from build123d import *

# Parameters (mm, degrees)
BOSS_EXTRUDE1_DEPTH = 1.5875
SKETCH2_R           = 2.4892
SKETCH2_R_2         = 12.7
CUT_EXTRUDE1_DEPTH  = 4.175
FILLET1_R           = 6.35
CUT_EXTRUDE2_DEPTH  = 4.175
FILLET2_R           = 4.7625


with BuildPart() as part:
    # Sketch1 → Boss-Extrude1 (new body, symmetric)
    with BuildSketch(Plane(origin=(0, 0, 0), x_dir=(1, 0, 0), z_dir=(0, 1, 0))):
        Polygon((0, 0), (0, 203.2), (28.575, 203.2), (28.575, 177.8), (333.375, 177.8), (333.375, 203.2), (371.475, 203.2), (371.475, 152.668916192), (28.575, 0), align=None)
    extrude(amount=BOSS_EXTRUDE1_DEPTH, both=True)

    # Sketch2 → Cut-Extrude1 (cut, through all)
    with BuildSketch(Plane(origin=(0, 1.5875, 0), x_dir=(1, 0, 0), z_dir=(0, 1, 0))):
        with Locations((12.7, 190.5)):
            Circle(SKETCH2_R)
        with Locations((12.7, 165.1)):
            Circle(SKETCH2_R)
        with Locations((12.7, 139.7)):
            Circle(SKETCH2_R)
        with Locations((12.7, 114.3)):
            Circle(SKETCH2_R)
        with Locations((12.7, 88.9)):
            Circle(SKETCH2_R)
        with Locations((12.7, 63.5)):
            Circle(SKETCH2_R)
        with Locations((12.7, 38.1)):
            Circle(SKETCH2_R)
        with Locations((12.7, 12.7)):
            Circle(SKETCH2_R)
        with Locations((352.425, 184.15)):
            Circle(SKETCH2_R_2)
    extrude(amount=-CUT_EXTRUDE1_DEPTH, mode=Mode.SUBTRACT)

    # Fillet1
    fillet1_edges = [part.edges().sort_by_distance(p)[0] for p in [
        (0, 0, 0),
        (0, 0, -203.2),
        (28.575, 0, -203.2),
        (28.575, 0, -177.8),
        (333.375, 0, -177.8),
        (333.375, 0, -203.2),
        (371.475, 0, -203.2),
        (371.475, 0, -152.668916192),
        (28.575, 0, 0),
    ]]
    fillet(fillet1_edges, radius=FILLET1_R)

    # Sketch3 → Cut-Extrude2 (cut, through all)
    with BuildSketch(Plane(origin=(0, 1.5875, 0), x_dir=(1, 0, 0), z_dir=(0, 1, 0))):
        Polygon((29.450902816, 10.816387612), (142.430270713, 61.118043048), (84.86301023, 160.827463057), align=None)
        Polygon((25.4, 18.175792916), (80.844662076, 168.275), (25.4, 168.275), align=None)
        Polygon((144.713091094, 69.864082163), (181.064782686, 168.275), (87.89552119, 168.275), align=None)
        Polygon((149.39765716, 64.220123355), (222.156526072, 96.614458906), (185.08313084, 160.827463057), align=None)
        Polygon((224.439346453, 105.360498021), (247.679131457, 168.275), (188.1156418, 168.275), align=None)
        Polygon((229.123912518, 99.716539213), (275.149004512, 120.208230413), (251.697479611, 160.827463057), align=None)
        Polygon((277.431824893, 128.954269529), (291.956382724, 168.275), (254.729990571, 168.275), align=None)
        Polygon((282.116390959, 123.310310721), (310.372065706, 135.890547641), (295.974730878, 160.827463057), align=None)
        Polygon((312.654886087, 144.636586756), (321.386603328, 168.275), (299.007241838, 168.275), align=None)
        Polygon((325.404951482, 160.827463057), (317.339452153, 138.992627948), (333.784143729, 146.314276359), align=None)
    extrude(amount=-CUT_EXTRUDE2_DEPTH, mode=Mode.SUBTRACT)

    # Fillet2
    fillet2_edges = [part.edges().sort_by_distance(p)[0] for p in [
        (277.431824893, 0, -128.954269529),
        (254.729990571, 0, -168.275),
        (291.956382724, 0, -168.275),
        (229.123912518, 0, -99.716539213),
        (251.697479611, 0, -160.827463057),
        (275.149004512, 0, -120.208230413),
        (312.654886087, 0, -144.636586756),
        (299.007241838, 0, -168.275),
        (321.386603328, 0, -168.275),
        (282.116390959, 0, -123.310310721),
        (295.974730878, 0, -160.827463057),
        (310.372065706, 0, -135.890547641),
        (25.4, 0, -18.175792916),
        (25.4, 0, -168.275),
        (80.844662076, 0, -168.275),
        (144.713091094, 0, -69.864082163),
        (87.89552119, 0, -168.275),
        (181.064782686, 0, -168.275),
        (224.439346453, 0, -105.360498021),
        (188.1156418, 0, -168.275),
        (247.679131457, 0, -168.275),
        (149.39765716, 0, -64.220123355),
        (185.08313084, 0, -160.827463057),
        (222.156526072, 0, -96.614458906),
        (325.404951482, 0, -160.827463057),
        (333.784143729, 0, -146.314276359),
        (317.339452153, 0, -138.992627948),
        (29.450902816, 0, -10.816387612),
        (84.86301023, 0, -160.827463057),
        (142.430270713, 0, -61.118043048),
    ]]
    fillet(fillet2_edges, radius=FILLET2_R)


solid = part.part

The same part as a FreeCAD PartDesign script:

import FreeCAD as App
import Part
import Sketcher

V = App.Vector
Q = App.Units.Quantity


def edges_at(feature, points):
    """Names of the edges that pass closest to the given points."""
    edges = feature.Shape.Edges
    near = lambda p: min(range(len(edges)), key=lambda i: edges[i].distToShape(Part.Vertex(*p))[0])
    return sorted({f"Edge{near(p) + 1}" for p in points})

doc = App.newDocument("Part")
body = doc.addObject("PartDesign::Body", "Body")

sketch1 = doc.addObject("Sketcher::SketchObject", "Sketch")
body.addObject(sketch1)
sketch1.AttachmentSupport = (doc.XZ_Plane, [""])
sketch1.MapMode = "FlatFace"
sketch1.addGeometry([
    Part.LineSegment(V(0, -203.2, 0), V(0, 0, 0)),
    Part.LineSegment(V(0, 0, 0), V(28.575, 0, 0)),
    Part.LineSegment(V(28.575, 0, 0), V(371.475, -152.668916, 0)),
    Part.LineSegment(V(371.475, -152.668916, 0), V(371.475, -203.2, 0)),
    Part.LineSegment(V(371.475, -203.2, 0), V(333.375, -203.2, 0)),
    Part.LineSegment(V(333.375, -203.2, 0), V(333.375, -177.8, 0)),
    Part.LineSegment(V(333.375, -177.8, 0), V(28.575, -177.8, 0)),
    Part.LineSegment(V(28.575, -177.8, 0), V(28.575, -203.2, 0)),
    Part.LineSegment(V(28.575, -203.2, 0), V(0, -203.2, 0)),
], False)
sketch1.addConstraint([
    Sketcher.Constraint("Coincident", 0, 2, 1, 1),
    Sketcher.Constraint("Coincident", 1, 2, 2, 1),
    Sketcher.Constraint("Coincident", 2, 2, 3, 1),
    Sketcher.Constraint("Coincident", 3, 2, 4, 1),
    Sketcher.Constraint("Coincident", 4, 2, 5, 1),
    Sketcher.Constraint("Coincident", 5, 2, 6, 1),
    Sketcher.Constraint("Coincident", 6, 2, 7, 1),
    Sketcher.Constraint("Coincident", 7, 2, 8, 1),
    Sketcher.Constraint("Coincident", 8, 2, 0, 1),
    Sketcher.Constraint("Vertical", 0),
    Sketcher.Constraint("Horizontal", 1),
    Sketcher.Constraint("Vertical", 3),
    Sketcher.Constraint("Horizontal", 4),
    Sketcher.Constraint("Vertical", 5),
    Sketcher.Constraint("Horizontal", 6),
    Sketcher.Constraint("Vertical", 7),
    Sketcher.Constraint("Horizontal", 8),
    Sketcher.Constraint("Coincident", 0, 2, -1, 1),
    Sketcher.Constraint("Horizontal", 4, 2, 7, 2),
    Sketcher.Constraint("Vertical", 1, 2, 6, 2),
    Sketcher.Constraint("DistanceX", 6, 2, 6, 1, Q("12 in")),
    Sketcher.Constraint("DistanceY", 0, 1, 0, 2, Q("8 in")),
    Sketcher.Constraint("DistanceY", 5, 1, 5, 2, Q("1 in")),
    Sketcher.Constraint("DistanceX", 4, 2, 4, 1, Q("1.5 in")),
    Sketcher.Constraint("Angle", 2, Q("-24 deg")),
    Sketcher.Constraint("DistanceX", 1, 1, 1, 2, Q("1.125 in")),
])
pad1 = doc.addObject("PartDesign::Pad", "Pad")
body.addObject(pad1)
pad1.Profile = sketch1
pad1.Length = Q("0.125 in")
pad1.Midplane = True

sketch2 = doc.addObject("Sketcher::SketchObject", "Sketch001")
body.addObject(sketch2)
sketch2.AttachmentSupport = (doc.XZ_Plane, [""])
sketch2.MapMode = "FlatFace"
sketch2.AttachmentOffset = App.Placement(V(0, 0, -0.0625 * 25.4), App.Rotation())
sketch2.addGeometry([
    Part.Circle(V(12.7, -190.5, 0), V(0, 0, 1), 2.4892),
    Part.Circle(V(12.7, -165.1, 0), V(0, 0, 1), 2.4892),
    Part.Circle(V(12.7, -139.7, 0), V(0, 0, 1), 2.4892),
    Part.Circle(V(12.7, -114.3, 0), V(0, 0, 1), 2.4892),
    Part.Circle(V(12.7, -88.9, 0), V(0, 0, 1), 2.4892),
    Part.Circle(V(12.7, -63.5, 0), V(0, 0, 1), 2.4892),
    Part.Circle(V(12.7, -38.1, 0), V(0, 0, 1), 2.4892),
    Part.Circle(V(12.7, -12.7, 0), V(0, 0, 1), 2.4892),
    Part.Circle(V(352.425, -184.15, 0), V(0, 0, 1), 12.7),
], False)
sketch2.addConstraint([
    Sketcher.Constraint("Equal", 0, 1),
    Sketcher.Constraint("Equal", 1, 2),
    Sketcher.Constraint("Equal", 2, 3),
    Sketcher.Constraint("Equal", 3, 4),
    Sketcher.Constraint("Equal", 4, 5),
    Sketcher.Constraint("Equal", 5, 6),
    Sketcher.Constraint("Equal", 6, 7),
    Sketcher.Constraint("Vertical", 0, 3, 1, 3),
    Sketcher.Constraint("Vertical", 1, 3, 2, 3),
    Sketcher.Constraint("Vertical", 2, 3, 3, 3),
    Sketcher.Constraint("Vertical", 3, 3, 4, 3),
    Sketcher.Constraint("Vertical", 4, 3, 5, 3),
    Sketcher.Constraint("Vertical", 5, 3, 6, 3),
    Sketcher.Constraint("Vertical", 6, 3, 7, 3),
    Sketcher.Constraint("Diameter", 8, Q("1 in")),
    Sketcher.Constraint("Diameter", 0, Q("0.196 in")),
    Sketcher.Constraint("DistanceY", 0, 3, 1, 3, Q("1 in")),
    Sketcher.Constraint("DistanceY", 1, 3, 2, 3, Q("1 in")),
    Sketcher.Constraint("DistanceY", 2, 3, 3, 3, Q("1 in")),
    Sketcher.Constraint("DistanceY", 3, 3, 4, 3, Q("1 in")),
    Sketcher.Constraint("DistanceY", 4, 3, 5, 3, Q("1 in")),
    Sketcher.Constraint("DistanceY", 5, 3, 6, 3, Q("1 in")),
    Sketcher.Constraint("DistanceY", 6, 3, 7, 3, Q("1 in")),
    Sketcher.Constraint("DistanceX", -1, 1, 0, 3, Q("0.5 in")),
    Sketcher.Constraint("DistanceY", 0, 3, -1, 1, Q("7.5 in")),
    Sketcher.Constraint("DistanceY", 8, 3, -1, 1, Q("7.25 in")),
    Sketcher.Constraint("DistanceX", -1, 1, 8, 3, Q("13.875 in")),
])
pocket1 = doc.addObject("PartDesign::Pocket", "Pocket")
body.addObject(pocket1)
pocket1.Profile = sketch2
pocket1.Type = "ThroughAll"
pocket1.Reversed = True
doc.recompute()

fillet = doc.addObject("PartDesign::Fillet", "Fillet")
body.addObject(fillet)
fillet.Base = (pocket1, edges_at(pocket1, [
    (0, 0, 0),
    (0, 0, -203.2),
    (28.575, 0, -203.2),
    (28.575, 0, -177.8),
    (333.375, 0, -177.8),
    (333.375, 0, -203.2),
    (371.475, 0, -203.2),
    (371.475, 0, -152.669),
    (28.575, 0, 0),
]))
fillet.Radius = Q("0.25 in")

sketch3 = doc.addObject("Sketcher::SketchObject", "Sketch002")
body.addObject(sketch3)
sketch3.AttachmentSupport = (doc.XZ_Plane, [""])
sketch3.MapMode = "FlatFace"
sketch3.AttachmentOffset = App.Placement(V(0, 0, -0.0625 * 25.4), App.Rotation())
sketch3.addGeometry([
    Part.LineSegment(V(29.450903, -10.816388, 0), V(142.430271, -61.118043, 0)),
    Part.LineSegment(V(142.430271, -61.118043, 0), V(84.86301, -160.827463, 0)),
    Part.LineSegment(V(84.86301, -160.827463, 0), V(29.450903, -10.816388, 0)),
    Part.LineSegment(V(25.4, -18.175793, 0), V(80.844662, -168.275, 0)),
    Part.LineSegment(V(80.844662, -168.275, 0), V(25.4, -168.275, 0)),
    Part.LineSegment(V(25.4, -168.275, 0), V(25.4, -18.175793, 0)),
    Part.LineSegment(V(144.713091, -69.864082, 0), V(181.064783, -168.275, 0)),
    Part.LineSegment(V(181.064783, -168.275, 0), V(87.895521, -168.275, 0)),
    Part.LineSegment(V(87.895521, -168.275, 0), V(144.713091, -69.864082, 0)),
    Part.LineSegment(V(149.397657, -64.220123, 0), V(222.156526, -96.614459, 0)),
    Part.LineSegment(V(222.156526, -96.614459, 0), V(185.083131, -160.827463, 0)),
    Part.LineSegment(V(185.083131, -160.827463, 0), V(149.397657, -64.220123, 0)),
    Part.LineSegment(V(224.439346, -105.360498, 0), V(247.679131, -168.275, 0)),
    Part.LineSegment(V(247.679131, -168.275, 0), V(188.115642, -168.275, 0)),
    Part.LineSegment(V(188.115642, -168.275, 0), V(224.439346, -105.360498, 0)),
    Part.LineSegment(V(229.123913, -99.716539, 0), V(275.149005, -120.20823, 0)),
    Part.LineSegment(V(275.149005, -120.20823, 0), V(251.69748, -160.827463, 0)),
    Part.LineSegment(V(251.69748, -160.827463, 0), V(229.123913, -99.716539, 0)),
    Part.LineSegment(V(277.431825, -128.95427, 0), V(291.956383, -168.275, 0)),
    Part.LineSegment(V(291.956383, -168.275, 0), V(254.729991, -168.275, 0)),
    Part.LineSegment(V(254.729991, -168.275, 0), V(277.431825, -128.95427, 0)),
    Part.LineSegment(V(282.116391, -123.310311, 0), V(310.372066, -135.890548, 0)),
    Part.LineSegment(V(310.372066, -135.890548, 0), V(295.974731, -160.827463, 0)),
    Part.LineSegment(V(295.974731, -160.827463, 0), V(282.116391, -123.310311, 0)),
    Part.LineSegment(V(312.654886, -144.636587, 0), V(321.386603, -168.275, 0)),
    Part.LineSegment(V(321.386603, -168.275, 0), V(299.007242, -168.275, 0)),
    Part.LineSegment(V(299.007242, -168.275, 0), V(312.654886, -144.636587, 0)),
    Part.LineSegment(V(325.404951, -160.827463, 0), V(317.339452, -138.992628, 0)),
    Part.LineSegment(V(317.339452, -138.992628, 0), V(333.784144, -146.314276, 0)),
    Part.LineSegment(V(333.784144, -146.314276, 0), V(325.404951, -160.827463, 0)),
], False)
sketch3.addConstraint([
    Sketcher.Constraint("Coincident", 0, 2, 1, 1),
    Sketcher.Constraint("Coincident", 1, 2, 2, 1),
    Sketcher.Constraint("Coincident", 2, 2, 0, 1),
    Sketcher.Constraint("Coincident", 3, 2, 4, 1),
    Sketcher.Constraint("Coincident", 4, 2, 5, 1),
    Sketcher.Constraint("Coincident", 5, 2, 3, 1),
    Sketcher.Constraint("Coincident", 6, 2, 7, 1),
    Sketcher.Constraint("Coincident", 7, 2, 8, 1),
    Sketcher.Constraint("Coincident", 8, 2, 6, 1),
    Sketcher.Constraint("Coincident", 9, 2, 10, 1),
    Sketcher.Constraint("Coincident", 10, 2, 11, 1),
    Sketcher.Constraint("Coincident", 11, 2, 9, 1),
    Sketcher.Constraint("Coincident", 12, 2, 13, 1),
    Sketcher.Constraint("Coincident", 13, 2, 14, 1),
    Sketcher.Constraint("Coincident", 14, 2, 12, 1),
    Sketcher.Constraint("Coincident", 15, 2, 16, 1),
    Sketcher.Constraint("Coincident", 16, 2, 17, 1),
    Sketcher.Constraint("Coincident", 17, 2, 15, 1),
    Sketcher.Constraint("Coincident", 18, 2, 19, 1),
    Sketcher.Constraint("Coincident", 19, 2, 20, 1),
    Sketcher.Constraint("Coincident", 20, 2, 18, 1),
    Sketcher.Constraint("Coincident", 21, 2, 22, 1),
    Sketcher.Constraint("Coincident", 22, 2, 23, 1),
    Sketcher.Constraint("Coincident", 23, 2, 21, 1),
    Sketcher.Constraint("Coincident", 24, 2, 25, 1),
    Sketcher.Constraint("Coincident", 25, 2, 26, 1),
    Sketcher.Constraint("Coincident", 26, 2, 24, 1),
    Sketcher.Constraint("Coincident", 27, 2, 28, 1),
    Sketcher.Constraint("Coincident", 28, 2, 29, 1),
    Sketcher.Constraint("Coincident", 29, 2, 27, 1),
    Sketcher.Constraint("Horizontal", 4),
    Sketcher.Constraint("Vertical", 5),
    Sketcher.Constraint("Horizontal", 7),
    Sketcher.Constraint("Horizontal", 13),
    Sketcher.Constraint("Horizontal", 19),
    Sketcher.Constraint("Horizontal", 25),
    Sketcher.Constraint("Parallel", 2, 3),
    Sketcher.Constraint("Parallel", 3, 6),
    Sketcher.Constraint("Parallel", 1, 8),
    Sketcher.Constraint("Parallel", 0, 9),
    Sketcher.Constraint("Parallel", 8, 10),
    Sketcher.Constraint("Parallel", 6, 11),
    Sketcher.Constraint("Parallel", 11, 12),
    Sketcher.Constraint("Parallel", 10, 14),
    Sketcher.Constraint("Parallel", 9, 15),
    Sketcher.Constraint("Parallel", 14, 16),
    Sketcher.Constraint("Parallel", 12, 17),
    Sketcher.Constraint("Parallel", 17, 18),
    Sketcher.Constraint("Parallel", 16, 20),
    Sketcher.Constraint("Parallel", 15, 21),
    Sketcher.Constraint("Parallel", 20, 22),
    Sketcher.Constraint("Parallel", 18, 23),
    Sketcher.Constraint("Parallel", 23, 24),
    Sketcher.Constraint("Parallel", 22, 26),
    Sketcher.Constraint("Parallel", 24, 27),
    Sketcher.Constraint("Parallel", 21, 28),
    Sketcher.Constraint("Parallel", 26, 29),
    Sketcher.Constraint("Horizontal", 4, 2, 6, 2),
    Sketcher.Constraint("Horizontal", 1, 2, 10, 2),
    Sketcher.Constraint("Horizontal", 7, 2, 12, 2),
    Sketcher.Constraint("Horizontal", 10, 2, 16, 2),
    Sketcher.Constraint("Horizontal", 13, 2, 18, 2),
    Sketcher.Constraint("Horizontal", 16, 2, 22, 2),
    Sketcher.Constraint("Horizontal", 19, 2, 24, 2),
    Sketcher.Constraint("Horizontal", 22, 2, 29, 2),
    Sketcher.Constraint("DistanceX", -1, 1, 4, 2, Q("1 in")),
    Sketcher.Constraint("Angle", 0, Q("-24 deg")),
    Sketcher.Constraint("Angle", 1, Q("-120 deg")),
    Sketcher.Constraint("DistanceY", 3, 2, -1, 1, Q("6.625 in")),
    Sketcher.Constraint("DistanceX", 7, 2, 7, 1, Q("93.169261 mm")),
    Sketcher.Constraint("DistanceX", 13, 2, 13, 1, Q("59.56349 mm")),
    Sketcher.Constraint("DistanceX", 25, 2, 25, 1, Q("22.379361 mm")),
    Sketcher.Constraint("DistanceY", 14, 2, -1, 1, Q("105.360498 mm")),
    Sketcher.Constraint("DistanceX", 10, 2, 12, 2, Q("62.596001 mm")),
    Sketcher.Constraint("DistanceX", 27, 2, 29, 2, Q("8.065499 mm")),
    Sketcher.Constraint("Distance", 1, Q("115.134521 mm")),
    Sketcher.Constraint("Distance", 10, Q("74.14679 mm")),
    Sketcher.Constraint("Distance", 16, Q("46.90305 mm")),
    Sketcher.Constraint("Distance", 18, Q("41.917569 mm")),
    Sketcher.Constraint("Distance", 22, Q("28.79467 mm")),
    Sketcher.Constraint("DistanceX", 4, 2, 4, 1, Q("55.444662 mm")),
    Sketcher.Constraint("DistanceX", -1, 1, 0, 2, Q("142.430271 mm")),
    Sketcher.Constraint("DistanceX", -1, 1, 7, 2, Q("87.895521 mm")),
    Sketcher.Constraint("DistanceY", 9, 2, -1, 1, Q("96.614459 mm")),
    Sketcher.Constraint("DistanceX", -1, 1, 10, 2, Q("185.083131 mm")),
    Sketcher.Constraint("DistanceX", -1, 1, 16, 2, Q("251.69748 mm")),
    Sketcher.Constraint("DistanceX", -1, 1, 19, 2, Q("254.729991 mm")),
    Sketcher.Constraint("DistanceX", -1, 1, 22, 2, Q("295.974731 mm")),
    Sketcher.Constraint("DistanceX", -1, 1, 25, 2, Q("299.007242 mm")),
    Sketcher.Constraint("DistanceX", -1, 1, 29, 2, Q("325.404951 mm")),
])
pocket2 = doc.addObject("PartDesign::Pocket", "Pocket001")
body.addObject(pocket2)
pocket2.Profile = sketch3
pocket2.Type = "ThroughAll"
pocket2.Reversed = True
doc.recompute()

fillet2 = doc.addObject("PartDesign::Fillet", "Fillet001")
body.addObject(fillet2)
fillet2.Base = (pocket2, edges_at(pocket2, [
    (277.432, 0, -128.954),
    (254.73, 0, -168.275),
    (291.956, 0, -168.275),
    (229.124, 0, -99.717),
    (251.697, 0, -160.827),
    (275.149, 0, -120.208),
    (312.655, 0, -144.637),
    (299.007, 0, -168.275),
    (321.387, 0, -168.275),
    (282.116, 0, -123.31),
    (295.975, 0, -160.827),
    (310.372, 0, -135.891),
    (25.4, 0, -18.176),
    (25.4, 0, -168.275),
    (80.845, 0, -168.275),
    (144.713, 0, -69.864),
    (87.896, 0, -168.275),
    (181.065, 0, -168.275),
    (224.439, 0, -105.36),
    (188.116, 0, -168.275),
    (247.679, 0, -168.275),
    (149.398, 0, -64.22),
    (185.083, 0, -160.827),
    (222.157, 0, -96.614),
    (325.405, 0, -160.827),
    (333.784, 0, -146.314),
    (317.339, 0, -138.993),
    (29.451, 0, -10.816),
    (84.863, 0, -160.827),
    (142.43, 0, -61.118),
]))
fillet2.Radius = Q("0.1875 in")

doc.recompute()
